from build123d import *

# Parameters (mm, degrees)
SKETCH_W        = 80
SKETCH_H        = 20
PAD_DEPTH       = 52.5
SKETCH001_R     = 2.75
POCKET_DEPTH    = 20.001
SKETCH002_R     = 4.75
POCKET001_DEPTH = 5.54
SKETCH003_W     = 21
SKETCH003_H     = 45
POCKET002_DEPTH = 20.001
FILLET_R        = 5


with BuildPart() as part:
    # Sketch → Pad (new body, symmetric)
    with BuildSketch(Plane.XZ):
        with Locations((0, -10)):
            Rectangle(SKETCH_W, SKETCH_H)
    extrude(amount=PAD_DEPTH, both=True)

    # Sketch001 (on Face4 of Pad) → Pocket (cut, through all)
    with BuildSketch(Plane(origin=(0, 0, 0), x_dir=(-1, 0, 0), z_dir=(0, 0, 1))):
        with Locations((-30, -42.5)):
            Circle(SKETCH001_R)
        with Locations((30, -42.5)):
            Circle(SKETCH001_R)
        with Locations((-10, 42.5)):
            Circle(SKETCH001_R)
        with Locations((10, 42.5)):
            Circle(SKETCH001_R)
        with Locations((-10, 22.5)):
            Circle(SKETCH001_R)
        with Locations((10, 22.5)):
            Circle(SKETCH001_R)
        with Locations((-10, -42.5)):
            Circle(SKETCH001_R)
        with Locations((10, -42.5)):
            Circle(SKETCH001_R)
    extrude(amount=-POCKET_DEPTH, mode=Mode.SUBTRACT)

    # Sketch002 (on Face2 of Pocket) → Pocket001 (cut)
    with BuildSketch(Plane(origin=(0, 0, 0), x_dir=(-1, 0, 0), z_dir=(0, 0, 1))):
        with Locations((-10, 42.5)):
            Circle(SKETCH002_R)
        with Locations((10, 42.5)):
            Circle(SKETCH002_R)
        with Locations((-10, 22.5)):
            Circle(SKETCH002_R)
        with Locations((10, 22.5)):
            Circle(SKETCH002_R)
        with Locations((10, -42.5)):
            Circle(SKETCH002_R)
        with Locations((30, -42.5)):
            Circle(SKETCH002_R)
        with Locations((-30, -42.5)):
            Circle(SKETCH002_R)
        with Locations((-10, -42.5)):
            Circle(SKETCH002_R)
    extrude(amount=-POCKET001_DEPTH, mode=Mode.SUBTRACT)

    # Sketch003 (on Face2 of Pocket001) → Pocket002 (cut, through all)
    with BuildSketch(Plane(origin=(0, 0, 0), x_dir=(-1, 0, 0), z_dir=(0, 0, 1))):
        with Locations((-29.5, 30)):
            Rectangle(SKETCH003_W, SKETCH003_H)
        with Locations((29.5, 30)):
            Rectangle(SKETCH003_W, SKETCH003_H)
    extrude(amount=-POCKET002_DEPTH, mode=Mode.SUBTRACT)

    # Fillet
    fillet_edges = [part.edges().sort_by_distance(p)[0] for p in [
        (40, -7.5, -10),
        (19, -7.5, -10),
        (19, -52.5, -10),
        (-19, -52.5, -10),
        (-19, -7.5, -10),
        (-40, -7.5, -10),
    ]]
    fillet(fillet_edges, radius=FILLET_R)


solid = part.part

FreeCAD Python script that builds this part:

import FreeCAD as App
import Part
import Sketcher
from FreeCAD import Vector


def edges_at(feature, points):
    """Names of the edges that pass closest to the given points."""
    edges = feature.Shape.Edges
    near = lambda p: min(range(len(edges)), key=lambda i: edges[i].distToShape(Part.Vertex(*p))[0])
    return sorted({f"Edge{near(p) + 1}" for p in points})


def add_polygon(sketch, points):
    """Adds a closed chain of lines whose ends are joined by coincident constraints."""
    first, n = sketch.GeometryCount, len(points)
    for a, b in zip(points, points[1:] + points[:1]):
        sketch.addGeometry(Part.LineSegment(App.Vector(*a, 0), App.Vector(*b, 0)), False)
    for i in range(n):
        sketch.addConstraint(Sketcher.Constraint("Coincident", first + i, 2, first + (i + 1) % n, 1))

doc = App.newDocument("Part")
body = doc.addObject("PartDesign::Body", "Body")

# Sketch on XZ plane
sketch1 = body.newObject("Sketcher::SketchObject", "Sketch")
sketch1.AttachmentSupport = (doc.getObject("XZ_Plane"), [""])
sketch1.MapMode = "FlatFace"
add_polygon(sketch1, [(-40, 0), (-40, -20), (40, -20), (40, 0)])  # lines 0-3
sketch1.addConstraint([
    Sketcher.Constraint("Vertical", 0),
    Sketcher.Constraint("Horizontal", 1),
    Sketcher.Constraint("Vertical", 2),
    Sketcher.Constraint("Horizontal", 3),
    Sketcher.Constraint("Symmetric", 2, 2, 3, 2, -1, 1),
    Sketcher.Constraint("DistanceX", 1, 1, 1, 2, 80.0),
    Sketcher.Constraint("DistanceY", 0, 2, 0, 1, 20.0),
])
pad1 = body.newObject("PartDesign::Pad", "Pad")
pad1.Profile = sketch1
pad1.Length = 105
pad1.Midplane = True

# Sketch on XY plane
sketch2 = body.newObject("Sketcher::SketchObject", "Sketch001")
sketch2.AttachmentSupport = (doc.getObject("XY_Plane"), [""])
sketch2.MapMode = "FlatFace"
sketch2.addGeometry([
    Part.Circle(Vector(30, 42.5, 0), Vector(0, 0, 1), 2.8),  # 0
    Part.Circle(Vector(-30, 42.5, 0), Vector(0, 0, 1), 2.8),  # 1
    Part.Circle(Vector(10, -42.5, 0), Vector(0, 0, 1), 2.8),  # 2
    Part.Circle(Vector(-10, -42.5, 0), Vector(0, 0, 1), 2.8),  # 3
    Part.Circle(Vector(10, -22.5, 0), Vector(0, 0, 1), 2.8),  # 4
    Part.Circle(Vector(-10, -22.5, 0), Vector(0, 0, 1), 2.8),  # 5
    Part.Circle(Vector(10, 42.5, 0), Vector(0, 0, 1), 2.8),  # 6
    Part.Circle(Vector(-10, 42.5, 0), Vector(0, 0, 1), 2.8),  # 7
], False)
sketch2.addConstraint([
    Sketcher.Constraint("Equal", 0, 1),
    Sketcher.Constraint("Equal", 1, 2),
    Sketcher.Constraint("Equal", 2, 3),
    Sketcher.Constraint("Equal", 3, 4),
    Sketcher.Constraint("Equal", 4, 5),
    Sketcher.Constraint("Equal", 5, 6),
    Sketcher.Constraint("Equal", 6, 7),
    Sketcher.Constraint("Symmetric", 3, 3, 6, 3, -1, 1),
    Sketcher.Constraint("Symmetric", 2, 3, 7, 3, -1, 1),
    Sketcher.Constraint("Symmetric", 0, 3, 1, 3, -2),
    Sketcher.Constraint("Symmetric", 2, 3, 3, 3, -2),
    Sketcher.Constraint("Symmetric", 4, 3, 5, 3, -2),
    Sketcher.Constraint("Horizontal", 1, 3, 6, 3),
    Sketcher.Constraint("Vertical", 2, 3, 4, 3),
    Sketcher.Constraint("Diameter", 0, 5.5),
    Sketcher.Constraint("DistanceX", -1, 1, 0, 3, 30.0),
    Sketcher.Constraint("DistanceX", -1, 1, 2, 3, 10.0),
    Sketcher.Constraint("DistanceY", 2, 3, 0, 3, 85.0),
    Sketcher.Constraint("DistanceY", 2, 3, 4, 3, 20.0),
])
pocket1 = body.newObject("PartDesign::Pocket", "Pocket")
pocket1.Profile = sketch2
pocket1.Type = "ThroughAll"

# Sketch on XY plane
sketch3 = body.newObject("Sketcher::SketchObject", "Sketch002")
sketch3.AttachmentSupport = (doc.getObject("XY_Plane"), [""])
sketch3.MapMode = "FlatFace"
sketch3.addGeometry([
    Part.Circle(Vector(10, -42.5, 0), Vector(0, 0, 1), 4.8),  # 0
    Part.Circle(Vector(-10, -42.5, 0), Vector(0, 0, 1), 4.8),  # 1
    Part.Circle(Vector(10, -22.5, 0), Vector(0, 0, 1), 4.8),  # 2
    Part.Circle(Vector(-10, -22.5, 0), Vector(0, 0, 1), 4.8),  # 3
    Part.Circle(Vector(-10, 42.5, 0), Vector(0, 0, 1), 4.8),  # 4
    Part.Circle(Vector(-30, 42.5, 0), Vector(0, 0, 1), 4.8),  # 5
    Part.Circle(Vector(30, 42.5, 0), Vector(0, 0, 1), 4.8),  # 6
    Part.Circle(Vector(10, 42.5, 0), Vector(0, 0, 1), 4.8),  # 7
], False)
sketch3.addConstraint([
    Sketcher.Constraint("Equal", 0, 1),
    Sketcher.Constraint("Equal", 1, 2),
    Sketcher.Constraint("Equal", 2, 3),
    Sketcher.Constraint("Equal", 3, 4),
    Sketcher.Constraint("Equal", 4, 5),
    Sketcher.Constraint("Equal", 5, 6),
    Sketcher.Constraint("Equal", 6, 7),
    Sketcher.Constraint("Symmetric", 0, 3, 4, 3, -1, 1),
    Sketcher.Constraint("Symmetric", 1, 3, 7, 3, -1, 1),
    Sketcher.Constraint("Symmetric", 0, 3, 1, 3, -2),
    Sketcher.Constraint("Symmetric", 2, 3, 3, 3, -2),
    Sketcher.Constraint("Symmetric", 5, 3, 6, 3, -2),
    Sketcher.Constraint("Horizontal", 4, 3, 5, 3),
    Sketcher.Constraint("Vertical", 0, 3, 2, 3),
    Sketcher.Constraint("Diameter", 0, 9.5),
    Sketcher.Constraint("DistanceX", -1, 1, 0, 3, 10.0),
    Sketcher.Constraint("DistanceX", 5, 3, -1, 1, 30.0),
    Sketcher.Constraint("DistanceY", 0, 3, 2, 3, 20.0),
    Sketcher.Constraint("DistanceY", 3, 3, 4, 3, 65.0),
])
pocket2 = body.newObject("PartDesign::Pocket", "Pocket001")
pocket2.Profile = sketch3
pocket2.Length = 5.54

# Sketch on XY plane
sketch4 = body.newObject("Sketcher::SketchObject", "Sketch003")
sketch4.AttachmentSupport = (doc.getObject("XY_Plane"), [""])
sketch4.MapMode = "FlatFace"
add_polygon(sketch4, [(40, -52), (40, -8), (19, -8), (19, -52)])  # lines 0-3
add_polygon(sketch4, [(-19, -52), (-19, -8), (-40, -8), (-40, -52)])  # lines 4-7
sketch4.addConstraint([
    Sketcher.Constraint("Vertical", 0),
    Sketcher.Constraint("Horizontal", 1),
    Sketcher.Constraint("Vertical", 2),
    Sketcher.Constraint("Horizontal", 3),
    Sketcher.Constraint("Vertical", 4),
    Sketcher.Constraint("Horizontal", 5),
    Sketcher.Constraint("Vertical", 6),
    Sketcher.Constraint("Horizontal", 7),
    Sketcher.Constraint("Symmetric", 1, 2, 4, 2, -2),
    Sketcher.Constraint("Symmetric", 3, 2, 6, 2, -2),
    Sketcher.Constraint("DistanceX", 1, 2, 1, 1, 21.0),
    Sketcher.Constraint("DistanceY", 0, 1, 0, 2, 45.0),
    Sketcher.Constraint("DistanceX", -1, 1, 0, 2, 40.0),
    Sketcher.Constraint("DistanceY", 0, 2, -1, 1, 7.5),
])
pocket3 = body.newObject("PartDesign::Pocket", "Pocket002")
pocket3.Profile = sketch4
pocket3.Type = "ThroughAll"
doc.recompute()

fillet = body.newObject("PartDesign::Fillet", "Fillet")
fillet.Base = (pocket3, edges_at(pocket3, [
    (40, -7.5, -10),
    (19, -7.5, -10),
    (19, -52.5, -10),
    (-19, -52.5, -10),
    (-19, -7.5, -10),
    (-40, -7.5, -10),
]))
fillet.Radius = 5

doc.recompute()
